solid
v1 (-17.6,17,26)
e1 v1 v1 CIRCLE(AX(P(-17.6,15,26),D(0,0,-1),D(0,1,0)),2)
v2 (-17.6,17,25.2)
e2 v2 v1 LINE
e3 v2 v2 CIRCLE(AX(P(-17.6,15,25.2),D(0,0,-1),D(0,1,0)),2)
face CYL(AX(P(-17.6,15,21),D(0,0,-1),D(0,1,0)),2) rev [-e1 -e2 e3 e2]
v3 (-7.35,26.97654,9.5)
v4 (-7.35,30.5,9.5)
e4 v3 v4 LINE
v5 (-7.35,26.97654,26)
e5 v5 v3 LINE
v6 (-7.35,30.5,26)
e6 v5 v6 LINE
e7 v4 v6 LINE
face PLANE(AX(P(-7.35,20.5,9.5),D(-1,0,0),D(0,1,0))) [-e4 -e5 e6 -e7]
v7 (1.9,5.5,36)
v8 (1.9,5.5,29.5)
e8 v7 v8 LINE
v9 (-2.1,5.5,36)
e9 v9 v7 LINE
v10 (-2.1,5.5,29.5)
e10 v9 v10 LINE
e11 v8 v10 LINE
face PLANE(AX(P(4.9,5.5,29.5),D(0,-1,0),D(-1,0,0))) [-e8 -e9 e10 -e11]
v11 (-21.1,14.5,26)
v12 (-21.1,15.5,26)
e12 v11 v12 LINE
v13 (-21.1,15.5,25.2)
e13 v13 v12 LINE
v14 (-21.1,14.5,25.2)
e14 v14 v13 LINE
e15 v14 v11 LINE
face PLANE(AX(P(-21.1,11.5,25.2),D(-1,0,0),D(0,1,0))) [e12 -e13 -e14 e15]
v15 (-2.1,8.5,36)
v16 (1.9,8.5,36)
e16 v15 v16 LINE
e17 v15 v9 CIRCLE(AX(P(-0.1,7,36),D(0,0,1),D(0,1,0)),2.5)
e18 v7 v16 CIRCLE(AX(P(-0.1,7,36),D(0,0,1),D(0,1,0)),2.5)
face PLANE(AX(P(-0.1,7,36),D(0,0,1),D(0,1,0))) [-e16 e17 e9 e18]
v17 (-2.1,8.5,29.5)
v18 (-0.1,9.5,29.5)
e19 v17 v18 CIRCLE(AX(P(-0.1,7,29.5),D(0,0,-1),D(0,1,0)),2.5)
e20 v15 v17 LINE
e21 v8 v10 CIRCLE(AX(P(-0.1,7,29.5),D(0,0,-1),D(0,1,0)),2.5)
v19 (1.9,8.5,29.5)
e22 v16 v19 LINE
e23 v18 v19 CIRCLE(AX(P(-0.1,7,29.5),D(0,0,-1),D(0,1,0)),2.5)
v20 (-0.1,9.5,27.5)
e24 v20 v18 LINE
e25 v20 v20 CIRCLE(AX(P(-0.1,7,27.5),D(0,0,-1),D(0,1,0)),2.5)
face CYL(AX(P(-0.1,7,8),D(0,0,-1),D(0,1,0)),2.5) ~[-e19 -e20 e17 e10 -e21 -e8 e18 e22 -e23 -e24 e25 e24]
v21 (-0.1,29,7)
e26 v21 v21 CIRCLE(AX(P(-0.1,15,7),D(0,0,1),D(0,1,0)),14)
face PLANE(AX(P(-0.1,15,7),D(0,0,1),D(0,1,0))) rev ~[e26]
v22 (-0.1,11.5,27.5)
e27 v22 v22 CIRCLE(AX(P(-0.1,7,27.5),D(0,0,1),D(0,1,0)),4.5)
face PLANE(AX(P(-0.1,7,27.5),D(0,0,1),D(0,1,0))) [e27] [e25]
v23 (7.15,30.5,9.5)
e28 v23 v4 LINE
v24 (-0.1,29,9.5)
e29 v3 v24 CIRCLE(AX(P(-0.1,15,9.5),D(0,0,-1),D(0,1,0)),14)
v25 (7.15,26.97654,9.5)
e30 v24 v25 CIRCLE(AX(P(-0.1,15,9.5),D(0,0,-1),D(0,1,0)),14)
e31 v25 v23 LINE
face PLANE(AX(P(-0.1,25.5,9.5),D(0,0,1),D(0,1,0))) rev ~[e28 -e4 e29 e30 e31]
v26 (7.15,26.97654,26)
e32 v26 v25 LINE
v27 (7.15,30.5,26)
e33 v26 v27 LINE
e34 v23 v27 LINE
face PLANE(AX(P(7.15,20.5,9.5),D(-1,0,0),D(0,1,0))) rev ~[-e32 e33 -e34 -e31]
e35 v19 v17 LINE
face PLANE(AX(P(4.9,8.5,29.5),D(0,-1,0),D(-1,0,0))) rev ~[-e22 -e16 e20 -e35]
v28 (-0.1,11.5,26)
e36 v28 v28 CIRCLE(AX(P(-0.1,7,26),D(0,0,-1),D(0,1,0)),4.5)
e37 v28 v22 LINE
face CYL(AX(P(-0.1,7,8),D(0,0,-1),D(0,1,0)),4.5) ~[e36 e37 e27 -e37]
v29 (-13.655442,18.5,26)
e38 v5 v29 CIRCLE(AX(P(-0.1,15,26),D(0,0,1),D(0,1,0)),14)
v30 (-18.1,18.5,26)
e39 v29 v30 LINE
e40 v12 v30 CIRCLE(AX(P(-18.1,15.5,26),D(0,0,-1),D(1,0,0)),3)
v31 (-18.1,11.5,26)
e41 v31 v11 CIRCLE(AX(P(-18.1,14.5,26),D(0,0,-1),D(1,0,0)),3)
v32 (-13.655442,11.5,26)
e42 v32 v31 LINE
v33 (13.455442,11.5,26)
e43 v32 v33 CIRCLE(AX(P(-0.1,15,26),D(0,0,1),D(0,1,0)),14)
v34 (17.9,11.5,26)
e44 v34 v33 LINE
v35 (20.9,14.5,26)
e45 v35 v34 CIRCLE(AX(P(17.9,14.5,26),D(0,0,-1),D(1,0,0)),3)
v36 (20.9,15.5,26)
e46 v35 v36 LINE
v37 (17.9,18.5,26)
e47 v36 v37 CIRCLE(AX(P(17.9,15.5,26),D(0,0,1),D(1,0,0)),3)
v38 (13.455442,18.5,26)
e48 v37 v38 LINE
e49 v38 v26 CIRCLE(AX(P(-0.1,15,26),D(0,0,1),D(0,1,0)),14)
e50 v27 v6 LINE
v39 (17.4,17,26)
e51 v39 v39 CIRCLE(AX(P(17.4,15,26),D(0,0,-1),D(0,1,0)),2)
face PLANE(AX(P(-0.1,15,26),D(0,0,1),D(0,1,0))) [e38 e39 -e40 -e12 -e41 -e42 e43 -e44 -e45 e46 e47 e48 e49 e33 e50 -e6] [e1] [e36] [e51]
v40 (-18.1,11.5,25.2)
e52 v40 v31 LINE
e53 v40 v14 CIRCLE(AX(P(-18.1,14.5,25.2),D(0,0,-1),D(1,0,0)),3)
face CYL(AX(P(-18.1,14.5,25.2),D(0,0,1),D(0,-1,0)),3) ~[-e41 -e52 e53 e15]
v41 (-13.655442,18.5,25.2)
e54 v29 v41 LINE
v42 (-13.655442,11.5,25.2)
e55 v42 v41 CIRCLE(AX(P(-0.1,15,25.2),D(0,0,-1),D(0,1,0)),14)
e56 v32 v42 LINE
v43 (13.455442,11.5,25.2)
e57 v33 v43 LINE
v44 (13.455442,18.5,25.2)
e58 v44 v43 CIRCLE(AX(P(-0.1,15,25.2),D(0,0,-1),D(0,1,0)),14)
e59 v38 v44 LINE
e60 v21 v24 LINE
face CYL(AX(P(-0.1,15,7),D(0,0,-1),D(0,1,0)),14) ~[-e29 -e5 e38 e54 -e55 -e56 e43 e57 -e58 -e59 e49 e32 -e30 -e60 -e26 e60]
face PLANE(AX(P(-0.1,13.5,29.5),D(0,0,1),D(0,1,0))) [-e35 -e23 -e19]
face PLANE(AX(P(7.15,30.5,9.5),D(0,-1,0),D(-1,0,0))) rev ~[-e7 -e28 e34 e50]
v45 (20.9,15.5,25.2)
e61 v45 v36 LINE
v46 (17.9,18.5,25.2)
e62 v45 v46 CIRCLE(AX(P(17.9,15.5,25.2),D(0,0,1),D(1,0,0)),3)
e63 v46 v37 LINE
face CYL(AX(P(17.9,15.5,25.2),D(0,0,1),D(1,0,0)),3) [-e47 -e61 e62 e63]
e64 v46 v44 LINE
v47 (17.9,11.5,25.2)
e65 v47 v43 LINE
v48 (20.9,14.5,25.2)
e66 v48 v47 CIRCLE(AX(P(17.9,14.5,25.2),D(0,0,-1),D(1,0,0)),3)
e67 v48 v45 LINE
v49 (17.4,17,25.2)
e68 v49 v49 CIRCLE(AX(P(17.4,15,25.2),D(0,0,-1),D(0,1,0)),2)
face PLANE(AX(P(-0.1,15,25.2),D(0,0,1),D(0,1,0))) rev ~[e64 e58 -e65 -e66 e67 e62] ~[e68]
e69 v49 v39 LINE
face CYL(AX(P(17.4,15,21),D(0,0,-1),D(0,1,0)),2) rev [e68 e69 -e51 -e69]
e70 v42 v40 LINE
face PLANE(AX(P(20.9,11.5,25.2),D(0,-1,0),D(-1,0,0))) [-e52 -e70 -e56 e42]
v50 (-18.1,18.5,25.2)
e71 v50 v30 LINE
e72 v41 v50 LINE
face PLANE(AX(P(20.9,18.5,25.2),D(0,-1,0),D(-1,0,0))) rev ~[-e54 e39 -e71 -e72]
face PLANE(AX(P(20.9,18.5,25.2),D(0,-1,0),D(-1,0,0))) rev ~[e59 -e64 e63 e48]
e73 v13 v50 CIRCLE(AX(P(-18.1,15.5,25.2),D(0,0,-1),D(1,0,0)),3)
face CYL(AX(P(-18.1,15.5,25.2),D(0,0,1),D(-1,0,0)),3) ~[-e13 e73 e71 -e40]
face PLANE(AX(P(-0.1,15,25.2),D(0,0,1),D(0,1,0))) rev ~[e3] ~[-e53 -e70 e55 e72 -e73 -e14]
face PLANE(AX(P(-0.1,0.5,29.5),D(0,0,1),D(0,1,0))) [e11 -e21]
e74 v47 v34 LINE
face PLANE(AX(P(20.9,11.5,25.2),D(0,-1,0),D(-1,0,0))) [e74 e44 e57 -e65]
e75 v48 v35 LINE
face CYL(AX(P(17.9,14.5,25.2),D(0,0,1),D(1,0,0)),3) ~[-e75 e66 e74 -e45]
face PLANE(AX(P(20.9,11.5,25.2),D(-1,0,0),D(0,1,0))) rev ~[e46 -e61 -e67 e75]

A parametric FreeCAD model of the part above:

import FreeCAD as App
import Part
import Sketcher

V = App.Vector


def edges_at(feature, points):
    """Names of the edges that pass closest to the given points."""
    edges = feature.Shape.Edges
    near = lambda p: min(range(len(edges)), key=lambda i: edges[i].distToShape(Part.Vertex(*p))[0])
    return sorted({f"Edge{near(p) + 1}" for p in points})

doc = App.newDocument("Part")
body = doc.addObject("PartDesign::Body", "Body")

sketch1 = doc.addObject("Sketcher::SketchObject", "Sketch")
body.addObject(sketch1)
sketch1.AttachmentSupport = (doc.XY_Plane, [""])
sketch1.MapMode = "FlatFace"
sketch1.AttachmentOffset = App.Placement(V(0, 0, 14), App.Rotation())
sketch1.addGeometry(Part.Circle(V(0, -17.5, 0), V(0, 0, 1), 2), False)
sketch1.addConstraint(Sketcher.Constraint("PointOnObject", 0, 3, -2))
sketch1.addConstraint(Sketcher.Constraint("Diameter", 0, 4.0))
sketch1.addConstraint(Sketcher.Constraint("DistanceY", 0, 3, -1, 1, 17.5))
pad1 = doc.addObject("PartDesign::Pad", "Pad")
body.addObject(pad1)
pad1.Profile = sketch1
pad1.Length = 20
body2 = doc.addObject("PartDesign::Body", "Body001")

sketch2 = doc.addObject("Sketcher::SketchObject", "Sketch001")
body2.addObject(sketch2)
sketch2.AttachmentSupport = (doc.getObject("XY_Plane001"), [""])
sketch2.MapMode = "FlatFace"
sketch2.AttachmentOffset = App.Placement(V(0, 0, 14), App.Rotation())
sketch2.addGeometry(Part.Circle(V(0, 17.5, 0), V(0, 0, 1), 2), False)
sketch2.addConstraint(Sketcher.Constraint("PointOnObject", 0, 3, -2))
sketch2.addConstraint(Sketcher.Constraint("Diameter", 0, 4.0))
sketch2.addConstraint(Sketcher.Constraint("DistanceY", -1, 1, 0, 3, 17.5))
pad2 = doc.addObject("PartDesign::Pad", "Pad001")
body2.addObject(pad2)
pad2.Profile = sketch2
pad2.Length = 20
body3 = doc.addObject("PartDesign::Body", "Body002")

sketch3 = doc.addObject("Sketcher::SketchObject", "Sketch002")
body3.addObject(sketch3)
sketch3.AttachmentSupport = (doc.getObject("XY_Plane002"), [""])
sketch3.MapMode = "FlatFace"
sketch3.AttachmentOffset = App.Placement(V(0, 0, 1), App.Rotation())
sketch3.addGeometry(Part.Circle(V(-8, 0, 0), V(0, 0, 1), 4.5), False)
sketch3.addConstraint(Sketcher.Constraint("PointOnObject", 0, 3, -1))
sketch3.addConstraint(Sketcher.Constraint("Diameter", 0, 9.0))
sketch3.addConstraint(Sketcher.Constraint("DistanceX", 0, 3, -1, 1, 8.0))
pad3 = doc.addObject("PartDesign::Pad", "Pad002")
body3.addObject(pad3)
pad3.Profile = sketch3
pad3.Length = 19.5
body4 = doc.addObject("PartDesign::Body", "Body003")

sketch4 = doc.addObject("Sketcher::SketchObject", "Sketch003")
body4.addObject(sketch4)
sketch4.AttachmentSupport = (doc.getObject("XY_Plane003"), [""])
sketch4.MapMode = "FlatFace"
sketch4.AttachmentOffset = App.Placement(V(0, 0, 18.2), App.Rotation())
sketch4.addGeometry(Part.LineSegment(V(-4, 21, 0), V(-4, -21, 0)), False)
sketch4.addGeometry(Part.LineSegment(V(-4, -21, 0), V(4, -21, 0)), False)
sketch4.addGeometry(Part.LineSegment(V(4, -21, 0), V(4, 21, 0)), False)
sketch4.addGeometry(Part.LineSegment(V(4, 21, 0), V(-4, 21, 0)), False)
sketch4.addConstraint(Sketcher.Constraint("Coincident", 0, 2, 1, 1))
sketch4.addConstraint(Sketcher.Constraint("Coincident", 1, 2, 2, 1))
sketch4.addConstraint(Sketcher.Constraint("Coincident", 2, 2, 3, 1))
sketch4.addConstraint(Sketcher.Constraint("Coincident", 3, 2, 0, 1))
sketch4.addConstraint(Sketcher.Constraint("Vertical", 0))
sketch4.addConstraint(Sketcher.Constraint("Horizontal", 1))
sketch4.addConstraint(Sketcher.Constraint("Vertical", 2))
sketch4.addConstraint(Sketcher.Constraint("Horizontal", 3))
sketch4.addConstraint(Sketcher.Constraint("Symmetric", 0, 2, 2, 2, -1, 1))
sketch4.addConstraint(Sketcher.Constraint("DistanceX", 1, 1, 1, 2, 7.0))
sketch4.addConstraint(Sketcher.Constraint("DistanceY", 0, 2, 0, 1, 42.0))
pad4 = doc.addObject("PartDesign::Pad", "Pad003")
body4.addObject(pad4)
pad4.Profile = sketch4
pad4.Length = 0.8
doc.recompute()

fillet = doc.addObject("PartDesign::Fillet", "Fillet")
body4.addObject(fillet)
fillet.Base = (pad4, edges_at(pad4, [(3.5, -21, 18.6)]))
fillet.Radius = 3
doc.recompute()

fillet2 = doc.addObject("PartDesign::Fillet", "Fillet001")
body4.addObject(fillet2)
fillet2.Base = (fillet, edges_at(fillet, [(-3.5, -21, 18.6)]))
fillet2.Radius = 3
doc.recompute()

fillet3 = doc.addObject("PartDesign::Fillet", "Fillet002")
body4.addObject(fillet3)
fillet3.Base = (fillet2, edges_at(fillet2, [(-3.5, 21, 18.6)]))
fillet3.Radius = 3
doc.recompute()

fillet4 = doc.addObject("PartDesign::Fillet", "Fillet003")
body4.addObject(fillet4)
fillet4.Base = (fillet3, edges_at(fillet3, [(3.5, 21, 18.6)]))
fillet4.Radius = 3
body5 = doc.addObject("PartDesign::Body", "Body004")

sketch5 = doc.addObject("Sketcher::SketchObject", "Sketch004")
body5.addObject(sketch5)
sketch5.AttachmentSupport = (doc.getObject("XY_Plane004"), [""])
sketch5.MapMode = "FlatFace"
sketch5.AttachmentOffset = App.Placement(V(0, 0, 2.5), App.Rotation())
sketch5.addGeometry(Part.LineSegment(V(6, 7, 0), V(6, -7, 0)), False)
sketch5.addGeometry(Part.LineSegment(V(6, -7, 0), V(16, -7, 0)), False)
sketch5.addGeometry(Part.LineSegment(V(16, -7, 0), V(16, 7, 0)), False)
sketch5.addGeometry(Part.LineSegment(V(16, 7, 0), V(6, 7, 0)), False)
sketch5.addConstraint(Sketcher.Constraint("Coincident", 0, 2, 1, 1))
sketch5.addConstraint(Sketcher.Constraint("Coincident", 1, 2, 2, 1))
sketch5.addConstraint(Sketcher.Constraint("Coincident", 2, 2, 3, 1))
sketch5.addConstraint(Sketcher.Constraint("Coincident", 3, 2, 0, 1))
sketch5.addConstraint(Sketcher.Constraint("Vertical", 0))
sketch5.addConstraint(Sketcher.Constraint("Horizontal", 1))
sketch5.addConstraint(Sketcher.Constraint("Vertical", 2))
sketch5.addConstraint(Sketcher.Constraint("Horizontal", 3))
sketch5.addConstraint(Sketcher.Constraint("DistanceX", 1, 1, 1, 2, 10.0))
sketch5.addConstraint(Sketcher.Constraint("DistanceY", 0, 2, 0, 1, 14.5))
sketch5.addConstraint(Sketcher.Constraint("DistanceX", -1, 1, 0, 2, 5.5))
sketch5.addConstraint(Sketcher.Constraint("DistanceY", 0, 2, -1, 1, 7.25))
pad5 = doc.addObject("PartDesign::Pad", "Pad004")
body5.addObject(pad5)
pad5.Profile = sketch5
pad5.Length = 16.5
body6 = doc.addObject("PartDesign::Body", "Body005")

sketch6 = doc.addObject("Sketcher::SketchObject", "Sketch005")
body6.addObject(sketch6)
sketch6.AttachmentSupport = (doc.getObject("XY_Plane005"), [""])
sketch6.MapMode = "FlatFace"
sketch6.addGeometry(Part.Circle(V(0, 0, 0), V(0, 0, 1), 14), False)
sketch6.addConstraint(Sketcher.Constraint("Coincident", 0, 3, -1, 1))
sketch6.addConstraint(Sketcher.Constraint("Diameter", 0, 28.0))
pad6 = doc.addObject("PartDesign::Pad", "Pad005")
body6.addObject(pad6)
pad6.Profile = sketch6
pad6.Length = 19
doc.recompute()

boolean = doc.addObject("PartDesign::Boolean", "Boolean")
body6.addObject(boolean)
boolean.Type = "Fuse"
boolean.addObjects([body5])
doc.recompute()

boolean2 = doc.addObject("PartDesign::Boolean", "Boolean001")
body6.addObject(boolean2)
boolean2.Type = "Fuse"
boolean2.addObjects([body4])
doc.recompute()

boolean3 = doc.addObject("PartDesign::Boolean", "Boolean002")
body6.addObject(boolean3)
boolean3.Type = "Fuse"
boolean3.addObjects([body3])
doc.recompute()

boolean4 = doc.addObject("PartDesign::Boolean", "Boolean003")
body6.addObject(boolean4)
boolean4.Type = "Cut"
boolean4.addObjects([body2])
doc.recompute()

boolean5 = doc.addObject("PartDesign::Boolean", "Boolean004")
body6.addObject(boolean5)
boolean5.Type = "Cut"
boolean5.addObjects([body])
body7 = doc.addObject("PartDesign::Body", "Body006")

sketch7 = doc.addObject("Sketcher::SketchObject", "Sketch006")
body7.addObject(sketch7)
sketch7.AttachmentSupport = (doc.getObject("XY_Plane006"), [""])
sketch7.MapMode = "FlatFace"
sketch7.AttachmentOffset = App.Placement(V(0, 0, 22.5), App.Rotation())
sketch7.addGeometry(Part.LineSegment(V(-6, 5, 0), V(-6, -5, 0)), False)
sketch7.addGeometry(Part.LineSegment(V(-6, -5, 0), V(4, -5, 0)), False)
sketch7.addGeometry(Part.LineSegment(V(4, -5, 0), V(4, 5, 0)), False)
sketch7.addGeometry(Part.LineSegment(V(4, 5, 0), V(-6, 5, 0)), False)
sketch7.addConstraint(Sketcher.Constraint("Coincident", 0, 2, 1, 1))
sketch7.addConstraint(Sketcher.Constraint("Coincident", 1, 2, 2, 1))
sketch7.addConstraint(Sketcher.Constraint("Coincident", 2, 2, 3, 1))
sketch7.addConstraint(Sketcher.Constraint("Coincident", 3, 2, 0, 1))
sketch7.addConstraint(Sketcher.Constraint("Vertical", 0))
sketch7.addConstraint(Sketcher.Constraint("Horizontal", 1))
sketch7.addConstraint(Sketcher.Constraint("Vertical", 2))
sketch7.addConstraint(Sketcher.Constraint("Horizontal", 3))
sketch7.addConstraint(Sketcher.Constraint("Equal", 3, 0))
sketch7.addConstraint(Sketcher.Constraint("DistanceX", 1, 1, 1, 2, 10.0))
sketch7.addConstraint(Sketcher.Constraint("DistanceY", 0, 2, -1, 1, 5.0))
sketch7.addConstraint(Sketcher.Constraint("DistanceX", 0, 2, -1, 1, 6.5))
pad7 = doc.addObject("PartDesign::Pad", "Pad006")
body7.addObject(pad7)
pad7.Profile = sketch7
pad7.Length = 10
body8 = doc.addObject("PartDesign::Body", "Body007")

sketch8 = doc.addObject("Sketcher::SketchObject", "Sketch007")
body8.addObject(sketch8)
sketch8.AttachmentSupport = (doc.getObject("XY_Plane007"), [""])
sketch8.MapMode = "FlatFace"
sketch8.AttachmentOffset = App.Placement(V(0, 0, 22.5), App.Rotation())
sketch8.addGeometry(Part.LineSegment(V(-20, 5, 0), V(-20, -5, 0)), False)
sketch8.addGeometry(Part.LineSegment(V(-20, -5, 0), V(-10, -5, 0)), False)
sketch8.addGeometry(Part.LineSegment(V(-10, -5, 0), V(-10, 5, 0)), False)
sketch8.addGeometry(Part.LineSegment(V(-10, 5, 0), V(-20, 5, 0)), False)
sketch8.addConstraint(Sketcher.Constraint("Coincident", 0, 2, 1, 1))
sketch8.addConstraint(Sketcher.Constraint("Coincident", 1, 2, 2, 1))
sketch8.addConstraint(Sketcher.Constraint("Coincident", 2, 2, 3, 1))
sketch8.addConstraint(Sketcher.Constraint("Coincident", 3, 2, 0, 1))
sketch8.addConstraint(Sketcher.Constraint("Vertical", 0))
sketch8.addConstraint(Sketcher.Constraint("Horizontal", 1))
sketch8.addConstraint(Sketcher.Constraint("Vertical", 2))
sketch8.addConstraint(Sketcher.Constraint("Horizontal", 3))
sketch8.addConstraint(Sketcher.Constraint("Equal", 3, 0))
sketch8.addConstraint(Sketcher.Constraint("DistanceX", 1, 1, 1, 2, 10.0))
sketch8.addConstraint(Sketcher.Constraint("DistanceY", 0, 2, -1, 1, 5.0))
sketch8.addConstraint(Sketcher.Constraint("DistanceX", 0, 2, -1, 1, 19.5))
pad8 = doc.addObject("PartDesign::Pad", "Pad007")
body8.addObject(pad8)
pad8.Profile = sketch8
pad8.Length = 10
body9 = doc.addObject("PartDesign::Body", "Body008")

sketch9 = doc.addObject("Sketcher::SketchObject", "Sketch008")
body9.addObject(sketch9)
sketch9.AttachmentSupport = (doc.getObject("XY_Plane008"), [""])
sketch9.MapMode = "FlatFace"
sketch9.AttachmentOffset = App.Placement(V(0, 0, 1), App.Rotation())
sketch9.addGeometry(Part.Circle(V(-8, 0, 0), V(0, 0, 1), 2.5), False)
sketch9.addConstraint(Sketcher.Constraint("PointOnObject", 0, 3, -1))
sketch9.addConstraint(Sketcher.Constraint("Diameter", 0, 5.0))
sketch9.addConstraint(Sketcher.Constraint("DistanceX", 0, 3, -1, 1, 8.0))
pad9 = doc.addObject("PartDesign::Pad", "Pad008")
body9.addObject(pad9)
pad9.Profile = sketch9
pad9.Length = 28
doc.recompute()

boolean6 = doc.addObject("PartDesign::Boolean", "Boolean005")
body9.addObject(boolean6)
boolean6.Type = "Cut"
boolean6.addObjects([body8])
doc.recompute()

boolean7 = doc.addObject("PartDesign::Boolean", "Boolean006")
body9.addObject(boolean7)
boolean7.Type = "Cut"
boolean7.addObjects([body7])
doc.recompute()

boolean8 = doc.addObject("PartDesign::Boolean", "Boolean007")
body9.addObject(boolean8)
boolean8.Type = "Fuse"
boolean8.addObjects([body6])
body10 = doc.addObject("PartDesign::Body", "Body009")
doc.recompute()

body9.Placement = App.Placement(V(-0.1, 15, 7), App.Rotation(V(0, 0, 1), 90))
boolean9 = doc.addObject("PartDesign::Boolean", "Boolean008")
body10.addObject(boolean9)
boolean9.Type = "Fuse"
boolean9.addObjects([body9])

doc.recompute()
